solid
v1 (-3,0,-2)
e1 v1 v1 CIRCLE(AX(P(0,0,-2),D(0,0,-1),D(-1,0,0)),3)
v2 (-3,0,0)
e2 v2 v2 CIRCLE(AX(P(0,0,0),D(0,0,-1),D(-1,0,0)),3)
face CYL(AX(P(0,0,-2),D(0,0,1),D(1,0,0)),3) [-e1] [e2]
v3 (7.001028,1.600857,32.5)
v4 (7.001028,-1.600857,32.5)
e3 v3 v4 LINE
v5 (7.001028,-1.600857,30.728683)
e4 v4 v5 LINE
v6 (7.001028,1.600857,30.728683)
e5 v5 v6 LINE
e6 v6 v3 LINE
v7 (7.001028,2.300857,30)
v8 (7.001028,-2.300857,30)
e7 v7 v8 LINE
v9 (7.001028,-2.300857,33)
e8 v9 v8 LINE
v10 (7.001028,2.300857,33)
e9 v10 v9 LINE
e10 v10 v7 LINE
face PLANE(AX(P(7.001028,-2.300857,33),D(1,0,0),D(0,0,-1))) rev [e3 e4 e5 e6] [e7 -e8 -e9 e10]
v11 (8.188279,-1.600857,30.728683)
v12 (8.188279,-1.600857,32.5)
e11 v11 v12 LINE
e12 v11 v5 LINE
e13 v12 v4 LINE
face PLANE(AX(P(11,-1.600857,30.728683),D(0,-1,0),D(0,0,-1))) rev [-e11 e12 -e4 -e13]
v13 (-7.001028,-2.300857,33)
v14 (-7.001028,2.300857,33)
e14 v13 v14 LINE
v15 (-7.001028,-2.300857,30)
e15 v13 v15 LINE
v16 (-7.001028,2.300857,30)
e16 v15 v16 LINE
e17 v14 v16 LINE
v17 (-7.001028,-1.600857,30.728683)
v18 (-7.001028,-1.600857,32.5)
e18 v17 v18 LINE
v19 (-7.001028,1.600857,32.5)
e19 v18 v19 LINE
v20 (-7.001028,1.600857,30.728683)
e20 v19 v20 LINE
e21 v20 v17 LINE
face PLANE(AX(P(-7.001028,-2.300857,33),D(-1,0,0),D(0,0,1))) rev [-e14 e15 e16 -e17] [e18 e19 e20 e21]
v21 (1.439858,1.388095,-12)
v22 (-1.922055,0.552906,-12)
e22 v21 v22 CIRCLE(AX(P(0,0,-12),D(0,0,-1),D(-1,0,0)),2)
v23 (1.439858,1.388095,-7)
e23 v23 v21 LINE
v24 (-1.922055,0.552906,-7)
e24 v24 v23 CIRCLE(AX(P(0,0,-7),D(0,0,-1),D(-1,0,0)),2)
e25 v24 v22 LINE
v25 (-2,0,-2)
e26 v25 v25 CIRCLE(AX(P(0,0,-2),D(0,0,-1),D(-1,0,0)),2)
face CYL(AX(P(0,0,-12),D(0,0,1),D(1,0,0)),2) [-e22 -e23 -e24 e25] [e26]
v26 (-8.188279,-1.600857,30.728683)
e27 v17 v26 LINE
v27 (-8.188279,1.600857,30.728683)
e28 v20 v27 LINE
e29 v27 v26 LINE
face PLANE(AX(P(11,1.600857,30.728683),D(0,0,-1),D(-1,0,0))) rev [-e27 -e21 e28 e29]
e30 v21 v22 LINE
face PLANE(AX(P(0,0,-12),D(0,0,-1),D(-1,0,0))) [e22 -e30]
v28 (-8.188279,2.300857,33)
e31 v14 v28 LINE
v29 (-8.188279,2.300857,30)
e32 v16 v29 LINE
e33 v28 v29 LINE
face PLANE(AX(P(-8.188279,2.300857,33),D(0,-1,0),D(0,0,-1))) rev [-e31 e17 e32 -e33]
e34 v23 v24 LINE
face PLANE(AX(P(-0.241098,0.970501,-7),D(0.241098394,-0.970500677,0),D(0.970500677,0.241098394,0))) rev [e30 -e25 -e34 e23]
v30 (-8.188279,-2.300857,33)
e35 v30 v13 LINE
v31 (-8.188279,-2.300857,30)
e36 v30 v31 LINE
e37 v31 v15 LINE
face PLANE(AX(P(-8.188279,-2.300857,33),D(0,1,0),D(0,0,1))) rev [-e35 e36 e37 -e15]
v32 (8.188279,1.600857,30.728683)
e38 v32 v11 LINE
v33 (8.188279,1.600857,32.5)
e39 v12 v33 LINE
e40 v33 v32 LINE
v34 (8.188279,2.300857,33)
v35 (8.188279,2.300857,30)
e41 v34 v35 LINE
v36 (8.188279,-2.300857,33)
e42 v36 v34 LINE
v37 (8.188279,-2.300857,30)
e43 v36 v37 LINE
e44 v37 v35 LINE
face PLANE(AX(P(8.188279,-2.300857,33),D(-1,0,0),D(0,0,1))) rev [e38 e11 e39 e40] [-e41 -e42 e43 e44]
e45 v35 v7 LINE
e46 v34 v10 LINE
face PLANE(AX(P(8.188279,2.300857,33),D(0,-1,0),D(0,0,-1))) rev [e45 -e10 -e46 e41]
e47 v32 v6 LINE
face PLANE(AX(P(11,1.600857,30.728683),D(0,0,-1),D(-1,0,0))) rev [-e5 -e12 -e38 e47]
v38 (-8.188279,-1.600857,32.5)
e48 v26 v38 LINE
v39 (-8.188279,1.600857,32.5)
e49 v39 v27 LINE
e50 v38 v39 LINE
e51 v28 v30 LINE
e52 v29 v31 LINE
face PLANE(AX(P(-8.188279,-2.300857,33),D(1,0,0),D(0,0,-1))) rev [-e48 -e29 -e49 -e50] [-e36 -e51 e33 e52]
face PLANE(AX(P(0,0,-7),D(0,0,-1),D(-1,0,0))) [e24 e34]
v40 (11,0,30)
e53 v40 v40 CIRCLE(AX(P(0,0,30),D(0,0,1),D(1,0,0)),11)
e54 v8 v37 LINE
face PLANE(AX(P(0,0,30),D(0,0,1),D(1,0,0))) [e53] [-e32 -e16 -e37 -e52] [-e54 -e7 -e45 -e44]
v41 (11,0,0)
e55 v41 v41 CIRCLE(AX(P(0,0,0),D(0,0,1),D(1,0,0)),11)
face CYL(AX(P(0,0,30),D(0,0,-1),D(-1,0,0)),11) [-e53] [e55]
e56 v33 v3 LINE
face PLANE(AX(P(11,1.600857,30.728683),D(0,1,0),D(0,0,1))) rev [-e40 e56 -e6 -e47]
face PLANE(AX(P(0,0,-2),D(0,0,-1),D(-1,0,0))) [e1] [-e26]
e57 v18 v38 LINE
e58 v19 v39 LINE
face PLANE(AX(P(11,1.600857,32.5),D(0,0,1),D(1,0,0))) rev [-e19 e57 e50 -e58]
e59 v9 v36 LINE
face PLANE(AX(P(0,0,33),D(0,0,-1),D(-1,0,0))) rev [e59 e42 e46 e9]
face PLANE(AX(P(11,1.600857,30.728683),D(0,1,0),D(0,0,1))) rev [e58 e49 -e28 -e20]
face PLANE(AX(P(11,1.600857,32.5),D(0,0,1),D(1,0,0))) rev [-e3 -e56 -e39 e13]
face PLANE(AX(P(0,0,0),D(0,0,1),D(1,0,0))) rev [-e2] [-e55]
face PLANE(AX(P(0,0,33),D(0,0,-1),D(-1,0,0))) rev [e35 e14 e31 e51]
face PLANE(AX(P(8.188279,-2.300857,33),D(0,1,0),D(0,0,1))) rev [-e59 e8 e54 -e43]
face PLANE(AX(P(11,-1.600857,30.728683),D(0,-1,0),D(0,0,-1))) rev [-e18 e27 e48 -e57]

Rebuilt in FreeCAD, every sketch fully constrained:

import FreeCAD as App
import Part
import Sketcher
from FreeCAD import Vector


def add_polygon(sketch, points):
    """Adds a closed chain of lines whose ends are joined by coincident constraints."""
    first, n = sketch.GeometryCount, len(points)
    for a, b in zip(points, points[1:] + points[:1]):
        sketch.addGeometry(Part.LineSegment(App.Vector(*a, 0), App.Vector(*b, 0)), False)
    for i in range(n):
        sketch.addConstraint(Sketcher.Constraint("Coincident", first + i, 2, first + (i + 1) % n, 1))

doc = App.newDocument("Part")
params = doc.addObject("Spreadsheet::Sheet", "Params")
for row, (alias, value) in enumerate([
    ("sketch1_diameter", "22 mm"),
    ("pad1_length", "30 mm"),
    ("sketch2_diameter", "6 mm"),
    ("pad2_length", "2 mm"),
    ("sketch3_diameter", "4 mm"),
    ("pad3_length", "10 mm"),
    ("pad4_length", "3 mm"),
    ("pocket2_length", "5 mm"),
], start=1):
    params.set(f"A{row}", alias)
    params.set(f"B{row}", "=" + value)
    params.setAlias(f"B{row}", alias)

body = doc.addObject("PartDesign::Body", "Body")

# Sketch on XY plane
sketch1 = body.newObject("Sketcher::SketchObject", "Sketch")
sketch1.AttachmentSupport = (doc.getObject("XY_Plane"), [""])
sketch1.MapMode = "FlatFace"
sketch1.addGeometry(Part.Circle(Vector(0, 0, 0), Vector(0, 0, 1), 11), False)
sketch1.addConstraint([
    Sketcher.Constraint("Coincident", 0, 3, -1, 1),
    Sketcher.Constraint("Diameter", 0, 22.0),
])
sketch1.setExpression("Constraints[1]", "Params.sketch1_diameter")
pad1 = body.newObject("PartDesign::Pad", "Pad")
pad1.Profile = sketch1
pad1.setExpression("Length", "Params.pad1_length")

# Sketch on XY plane
sketch2 = body.newObject("Sketcher::SketchObject", "Sketch001")
sketch2.AttachmentSupport = (doc.getObject("XY_Plane"), [""])
sketch2.MapMode = "FlatFace"
sketch2.addGeometry(Part.Circle(Vector(0, 0, 0), Vector(0, 0, 1), 3), False)
sketch2.addConstraint([
    Sketcher.Constraint("Coincident", 0, 3, -1, 1),
    Sketcher.Constraint("Diameter", 0, 6.0),
])
sketch2.setExpression("Constraints[1]", "Params.sketch2_diameter")
pad2 = body.newObject("PartDesign::Pad", "Pad001")
pad2.Profile = sketch2
pad2.setExpression("Length", "Params.pad2_length")
pad2.Reversed = True

# Sketch on XY plane
sketch3 = body.newObject("Sketcher::SketchObject", "Sketch002")
sketch3.AttachmentSupport = (doc.getObject("XY_Plane"), [""])
sketch3.MapMode = "FlatFace"
sketch3.AttachmentOffset = App.Placement(Vector(0, 0, -2), App.Rotation())
sketch3.addGeometry(Part.Circle(Vector(0, 0, 0), Vector(0, 0, 1), 2), False)
sketch3.addConstraint([
    Sketcher.Constraint("Coincident", 0, 3, -1, 1),
    Sketcher.Constraint("Diameter", 0, 4.0),
])
sketch3.setExpression("Constraints[1]", "Params.sketch3_diameter")
pad3 = body.newObject("PartDesign::Pad", "Pad002")
pad3.Profile = sketch3
pad3.setExpression("Length", "Params.pad3_length")
pad3.Reversed = True

# Sketch on XY plane
sketch4 = body.newObject("Sketcher::SketchObject", "Sketch003")
sketch4.AttachmentSupport = (doc.getObject("XY_Plane"), [""])
sketch4.MapMode = "FlatFace"
sketch4.AttachmentOffset = App.Placement(Vector(0, 0, 30), App.Rotation())
add_polygon(sketch4, [(-8.2, 2.3), (-8.2, -2.3), (-7, -2.3), (-7, 2.3)])  # lines 0-3
add_polygon(sketch4, [(7, 2.3), (7, -2.3), (8.2, -2.3), (8.2, 2.3)])  # lines 4-7
sketch4.addConstraint([
    Sketcher.Constraint("Vertical", 0),
    Sketcher.Constraint("Horizontal", 1),
    Sketcher.Constraint("Vertical", 2),
    Sketcher.Constraint("Horizontal", 3),
    Sketcher.Constraint("Vertical", 4),
    Sketcher.Constraint("Horizontal", 5),
    Sketcher.Constraint("Vertical", 6),
    Sketcher.Constraint("Horizontal", 7),
    Sketcher.Constraint("Symmetric", 2, 2, 4, 2, -1, 1),
    Sketcher.Constraint("Symmetric", 0, 2, 6, 2, -1, 1),
    Sketcher.Constraint("Horizontal", 1, 2, 4, 2),
    Sketcher.Constraint("DistanceX", 1, 1, 1, 2, 1.187252),
    Sketcher.Constraint("DistanceY", 0, 2, 0, 1, 4.601714),
    Sketcher.Constraint("DistanceX", 0, 2, -1, 1, 8.188279),
])
pad4 = body.newObject("PartDesign::Pad", "Pad003")
pad4.Profile = sketch4
pad4.setExpression("Length", "Params.pad4_length")

# Sketch on YZ plane
sketch5 = body.newObject("Sketcher::SketchObject", "Sketch004")
sketch5.AttachmentSupport = (doc.getObject("YZ_Plane"), [""])
sketch5.MapMode = "FlatFace"
sketch5.AttachmentOffset = App.Placement(Vector(0, 0, -8.188279), App.Rotation())
add_polygon(sketch5, [(1.6, 30.7), (-1.6, 30.7), (-1.6, 32.5), (1.6, 32.5)])  # lines 0-3
sketch5.addConstraint([
    Sketcher.Constraint("Horizontal", 0),
    Sketcher.Constraint("Vertical", 1),
    Sketcher.Constraint("Horizontal", 2),
    Sketcher.Constraint("Vertical", 3),
    Sketcher.Constraint("DistanceY", -1, 1, 1, 2, 32.5),
    Sketcher.Constraint("DistanceX", 0, 2, 0, 1, 3.201714),
    Sketcher.Constraint("DistanceY", 1, 1, 1, 2, 1.771317),
    Sketcher.Constraint("DistanceX", 0, 2, -1, 1, 1.600857),
])
pocket1 = body.newObject("PartDesign::Pocket", "Pocket")
pocket1.Profile = sketch5
pocket1.Type = "ThroughAll"
pocket1.Reversed = True

# Sketch on XY plane
sketch6 = body.newObject("Sketcher::SketchObject", "Sketch005")
sketch6.AttachmentSupport = (doc.getObject("XY_Plane"), [""])
sketch6.MapMode = "FlatFace"
sketch6.AttachmentOffset = App.Placement(Vector(0, 0, -12), App.Rotation())
add_polygon(sketch6, [(45.2, 12.3), (1.4, 1.4), (-1.9, 0.6), (-45.7, -10.3), (-67.5, 77.2), (23.5, 99.8)])  # lines 0-5
sketch6.addConstraint([
    Sketcher.Constraint("Parallel", 0, 1),
    Sketcher.Constraint("Parallel", 1, 2),
    Sketcher.Constraint("Perpendicular", 2, 3),
    Sketcher.Constraint("Perpendicular", 3, 4),
    Sketcher.Constraint("Perpendicular", 4, 5),
    Sketcher.Constraint("Equal", 0, 2),
    Sketcher.Constraint("Distance", 1, 3.464102),
    Sketcher.Constraint("DistanceY", 1, 2, 3, 2, 76.6862),
    Sketcher.Constraint("DistanceY", 3, 2, 4, 2, 22.588101),
    Sketcher.Constraint("Distance", 3, 90.22421),
    Sketcher.Constraint("DistanceX", -1, 1, 0, 2, 1.439858),
    Sketcher.Constraint("DistanceY", 2, 2, -1, 1, 10.32355),
])
pocket2 = body.newObject("PartDesign::Pocket", "Pocket001")
pocket2.Profile = sketch6
pocket2.setExpression("Length", "Params.pocket2_length")
pocket2.Reversed = True

doc.recompute()
